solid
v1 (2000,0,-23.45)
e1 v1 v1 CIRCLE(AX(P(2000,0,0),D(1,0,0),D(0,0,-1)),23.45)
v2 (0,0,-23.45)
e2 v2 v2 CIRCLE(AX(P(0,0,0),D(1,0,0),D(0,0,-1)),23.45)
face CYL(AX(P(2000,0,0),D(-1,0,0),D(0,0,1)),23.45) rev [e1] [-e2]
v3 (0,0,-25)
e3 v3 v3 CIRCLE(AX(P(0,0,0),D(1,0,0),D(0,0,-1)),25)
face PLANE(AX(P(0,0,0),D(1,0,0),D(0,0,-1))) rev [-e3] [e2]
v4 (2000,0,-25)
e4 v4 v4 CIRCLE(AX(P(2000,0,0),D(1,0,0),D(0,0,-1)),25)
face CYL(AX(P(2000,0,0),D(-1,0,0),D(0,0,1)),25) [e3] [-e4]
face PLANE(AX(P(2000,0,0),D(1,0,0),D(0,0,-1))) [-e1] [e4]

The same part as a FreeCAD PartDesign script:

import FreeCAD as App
import Part
import Sketcher

V = App.Vector
Q = App.Units.Quantity

doc = App.newDocument("Part")
body = doc.addObject("PartDesign::Body", "Body")

# Sketch on YZ plane
sketch1 = doc.addObject("Sketcher::SketchObject", "Sketch")
body.addObject(sketch1)
sketch1.AttachmentSupport = (doc.YZ_Plane, [""])
sketch1.MapMode = "FlatFace"
sketch1.addGeometry([
    Part.Circle(V(0, 0, 0), V(0, 0, 1), 25),
    Part.Circle(V(0, 0, 0), V(0, 0, 1), 23),
], False)
sketch1.addConstraint([
    Sketcher.Constraint("Coincident", 0, 3, -1, 1),
    Sketcher.Constraint("Coincident", 1, 3, -1, 1),
    Sketcher.Constraint("Diameter", 0, Q("50 mm")),
    Sketcher.Constraint("Diameter", 1, Q("46.9 mm")),
])
pad1 = doc.addObject("PartDesign::Pad", "Pad")
body.addObject(pad1)
pad1.Profile = sketch1
pad1.Length = 2000

doc.recompute()
